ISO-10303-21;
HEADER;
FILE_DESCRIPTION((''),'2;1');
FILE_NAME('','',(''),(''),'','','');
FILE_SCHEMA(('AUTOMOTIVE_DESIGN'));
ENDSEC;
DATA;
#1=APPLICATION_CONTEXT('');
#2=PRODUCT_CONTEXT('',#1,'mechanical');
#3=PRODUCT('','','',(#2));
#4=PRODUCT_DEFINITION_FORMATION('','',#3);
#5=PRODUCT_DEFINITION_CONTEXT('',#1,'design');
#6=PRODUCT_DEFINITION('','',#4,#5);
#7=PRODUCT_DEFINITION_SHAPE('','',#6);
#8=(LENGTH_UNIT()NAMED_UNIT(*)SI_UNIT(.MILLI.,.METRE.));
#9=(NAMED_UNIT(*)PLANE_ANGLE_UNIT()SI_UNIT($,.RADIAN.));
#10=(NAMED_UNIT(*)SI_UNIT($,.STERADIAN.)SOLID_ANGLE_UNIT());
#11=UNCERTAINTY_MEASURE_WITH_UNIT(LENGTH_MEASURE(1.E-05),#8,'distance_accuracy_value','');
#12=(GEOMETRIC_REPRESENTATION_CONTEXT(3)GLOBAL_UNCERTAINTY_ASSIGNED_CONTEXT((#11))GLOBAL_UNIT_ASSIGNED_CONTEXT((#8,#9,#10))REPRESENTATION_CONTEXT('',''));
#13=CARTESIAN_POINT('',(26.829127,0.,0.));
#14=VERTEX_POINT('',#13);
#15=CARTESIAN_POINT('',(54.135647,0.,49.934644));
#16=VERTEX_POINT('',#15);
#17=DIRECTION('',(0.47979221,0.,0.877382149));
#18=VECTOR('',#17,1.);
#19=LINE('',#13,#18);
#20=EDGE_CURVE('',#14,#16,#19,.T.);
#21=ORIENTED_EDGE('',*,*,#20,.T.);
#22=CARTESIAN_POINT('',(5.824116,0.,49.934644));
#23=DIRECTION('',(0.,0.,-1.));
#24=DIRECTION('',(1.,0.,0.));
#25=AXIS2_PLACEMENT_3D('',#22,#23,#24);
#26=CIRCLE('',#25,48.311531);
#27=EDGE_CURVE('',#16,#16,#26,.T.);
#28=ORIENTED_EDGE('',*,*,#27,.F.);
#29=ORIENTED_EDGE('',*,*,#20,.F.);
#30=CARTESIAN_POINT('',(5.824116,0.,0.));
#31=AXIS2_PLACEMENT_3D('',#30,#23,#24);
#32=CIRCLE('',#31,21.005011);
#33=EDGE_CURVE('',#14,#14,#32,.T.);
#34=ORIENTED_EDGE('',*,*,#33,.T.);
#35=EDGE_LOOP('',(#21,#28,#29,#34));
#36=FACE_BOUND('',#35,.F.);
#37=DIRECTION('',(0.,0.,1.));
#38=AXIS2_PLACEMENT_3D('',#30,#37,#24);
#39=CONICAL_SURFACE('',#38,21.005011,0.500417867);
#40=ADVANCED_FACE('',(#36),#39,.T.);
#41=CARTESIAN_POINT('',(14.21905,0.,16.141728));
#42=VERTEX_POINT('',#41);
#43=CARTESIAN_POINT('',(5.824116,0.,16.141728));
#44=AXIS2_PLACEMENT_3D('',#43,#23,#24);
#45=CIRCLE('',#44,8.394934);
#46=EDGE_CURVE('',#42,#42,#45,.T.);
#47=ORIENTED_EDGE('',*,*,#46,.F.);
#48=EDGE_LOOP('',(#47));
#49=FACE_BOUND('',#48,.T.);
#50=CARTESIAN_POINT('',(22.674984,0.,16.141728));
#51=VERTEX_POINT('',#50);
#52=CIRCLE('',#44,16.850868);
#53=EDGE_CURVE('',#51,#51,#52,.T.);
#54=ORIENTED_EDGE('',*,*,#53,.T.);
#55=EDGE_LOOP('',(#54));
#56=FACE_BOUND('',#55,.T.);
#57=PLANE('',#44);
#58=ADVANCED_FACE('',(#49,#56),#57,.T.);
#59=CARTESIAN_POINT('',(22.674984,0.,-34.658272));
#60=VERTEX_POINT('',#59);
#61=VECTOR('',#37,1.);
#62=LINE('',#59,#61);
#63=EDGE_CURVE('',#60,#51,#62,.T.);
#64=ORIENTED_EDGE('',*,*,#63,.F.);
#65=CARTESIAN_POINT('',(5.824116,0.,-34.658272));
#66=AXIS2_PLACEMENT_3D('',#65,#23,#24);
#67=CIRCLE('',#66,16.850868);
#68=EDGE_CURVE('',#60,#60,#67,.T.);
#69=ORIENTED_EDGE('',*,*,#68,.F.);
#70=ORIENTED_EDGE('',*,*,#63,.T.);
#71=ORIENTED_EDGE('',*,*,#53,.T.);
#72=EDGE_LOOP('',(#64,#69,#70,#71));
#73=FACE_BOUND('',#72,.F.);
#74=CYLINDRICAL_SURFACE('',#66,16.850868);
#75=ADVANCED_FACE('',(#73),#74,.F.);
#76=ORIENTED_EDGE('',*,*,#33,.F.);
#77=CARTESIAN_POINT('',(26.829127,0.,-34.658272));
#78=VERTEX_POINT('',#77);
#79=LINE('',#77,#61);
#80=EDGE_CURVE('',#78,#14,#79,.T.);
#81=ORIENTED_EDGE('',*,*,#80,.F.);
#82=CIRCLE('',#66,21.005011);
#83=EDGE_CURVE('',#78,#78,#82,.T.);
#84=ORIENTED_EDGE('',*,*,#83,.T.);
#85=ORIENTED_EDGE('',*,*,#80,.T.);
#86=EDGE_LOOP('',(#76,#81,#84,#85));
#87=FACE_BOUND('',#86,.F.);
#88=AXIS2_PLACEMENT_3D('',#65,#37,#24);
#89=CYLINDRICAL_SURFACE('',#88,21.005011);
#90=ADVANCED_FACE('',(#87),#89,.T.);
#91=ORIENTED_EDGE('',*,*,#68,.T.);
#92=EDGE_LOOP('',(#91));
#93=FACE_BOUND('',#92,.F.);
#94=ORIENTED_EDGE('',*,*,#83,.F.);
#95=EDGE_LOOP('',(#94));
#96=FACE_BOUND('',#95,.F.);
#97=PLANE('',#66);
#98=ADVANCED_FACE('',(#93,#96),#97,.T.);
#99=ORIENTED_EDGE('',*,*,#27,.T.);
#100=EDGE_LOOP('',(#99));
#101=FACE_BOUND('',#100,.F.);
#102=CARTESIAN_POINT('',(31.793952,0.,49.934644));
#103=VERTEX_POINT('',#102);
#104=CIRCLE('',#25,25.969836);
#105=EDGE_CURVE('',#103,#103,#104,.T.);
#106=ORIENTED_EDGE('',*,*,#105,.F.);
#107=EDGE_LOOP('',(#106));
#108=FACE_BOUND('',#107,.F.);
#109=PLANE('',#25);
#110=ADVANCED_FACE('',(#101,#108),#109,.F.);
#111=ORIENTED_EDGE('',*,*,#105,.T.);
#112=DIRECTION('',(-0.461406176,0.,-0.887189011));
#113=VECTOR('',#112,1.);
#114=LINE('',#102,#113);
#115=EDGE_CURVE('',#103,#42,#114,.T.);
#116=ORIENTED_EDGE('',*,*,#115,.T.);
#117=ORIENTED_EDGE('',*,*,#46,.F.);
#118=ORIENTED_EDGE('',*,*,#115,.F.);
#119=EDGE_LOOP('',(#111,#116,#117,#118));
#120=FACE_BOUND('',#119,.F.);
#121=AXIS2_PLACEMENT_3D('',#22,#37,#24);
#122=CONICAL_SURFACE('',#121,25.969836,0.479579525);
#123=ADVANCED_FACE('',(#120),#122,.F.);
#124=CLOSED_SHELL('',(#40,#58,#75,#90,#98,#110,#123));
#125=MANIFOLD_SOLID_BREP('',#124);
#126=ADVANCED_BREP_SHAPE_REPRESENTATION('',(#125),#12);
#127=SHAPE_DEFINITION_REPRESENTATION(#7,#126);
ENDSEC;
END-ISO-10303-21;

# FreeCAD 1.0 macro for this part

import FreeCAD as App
import Part
import Sketcher
Q = App.Units.Quantity

doc = App.newDocument("Part")
body = doc.addObject("PartDesign::Body", "Body")

# Sketch on XZ plane
sketch1 = doc.addObject("Sketcher::SketchObject", "Sketch")
body.addObject(sketch1)
sketch1.AttachmentSupport = (doc.XZ_Plane, [""])
sketch1.MapMode = "FlatFace"
sketch1.addGeometry(Part.LineSegment(App.Vector(32, 50, 0), App.Vector(6, 0, 0)), False)
sketch1.addGeometry(Part.LineSegment(App.Vector(6, 0, 0), App.Vector(6, -35, 0)), False)
sketch1.addGeometry(Part.LineSegment(App.Vector(6, -35, 0), App.Vector(27, -35, 0)), False)
sketch1.addGeometry(Part.LineSegment(App.Vector(27, -35, 0), App.Vector(27, 0, 0)), False)
sketch1.addGeometry(Part.LineSegment(App.Vector(27, 0, 0), App.Vector(54, 50, 0)), False)
sketch1.addGeometry(Part.LineSegment(App.Vector(54, 50, 0), App.Vector(32, 50, 0)), False)
sketch1.addGeometry(Part.LineSegment(App.Vector(6, 50, 0), App.Vector(6, -35, 0)), True)  # axis
sketch1.addConstraint(Sketcher.Constraint("Coincident", 0, 2, 1, 1))
sketch1.addConstraint(Sketcher.Constraint("Coincident", 1, 2, 2, 1))
sketch1.addConstraint(Sketcher.Constraint("Coincident", 2, 2, 3, 1))
sketch1.addConstraint(Sketcher.Constraint("Coincident", 3, 2, 4, 1))
sketch1.addConstraint(Sketcher.Constraint("Coincident", 4, 2, 5, 1))
sketch1.addConstraint(Sketcher.Constraint("Coincident", 5, 2, 0, 1))
sketch1.addConstraint(Sketcher.Constraint("Vertical", 1))
sketch1.addConstraint(Sketcher.Constraint("Horizontal", 2))
sketch1.addConstraint(Sketcher.Constraint("Vertical", 3))
sketch1.addConstraint(Sketcher.Constraint("Horizontal", 5))
sketch1.addConstraint(Sketcher.Constraint("Vertical", 6))
sketch1.addConstraint(Sketcher.Constraint("Coincident", 6, 2, 1, 2))
sketch1.addConstraint(Sketcher.Constraint("PointOnObject", 0, 2, -1))
sketch1.addConstraint(Sketcher.Constraint("PointOnObject", 3, 2, -1))
sketch1.addConstraint(Sketcher.Constraint("Horizontal", 5, 2, 6, 1))
sketch1.addConstraint(Sketcher.Constraint("DistanceX", 2, 1, 2, 2, 21.005011))
sketch1.addConstraint(Sketcher.Constraint("DistanceY", 1, 2, 1, 1, 34.658272))
sketch1.addConstraint(Sketcher.Constraint("Distance", 0, 56.28411))
sketch1.addConstraint(Sketcher.Constraint("Distance", 4, 56.913221))
sketch1.addConstraint(Sketcher.Constraint("DistanceX", 5, 2, 5, 1, 22.341695))
sketch1.addConstraint(Sketcher.Constraint("DistanceX", -1, 1, 0, 2, 5.824116))
revolution = doc.addObject("PartDesign::Revolution", "Revolution")
body.addObject(revolution)
revolution.Profile = sketch1
revolution.ReferenceAxis = (sketch1, ["Axis0"])
revolution.Angle = 360

# Sketch on XY plane
sketch2 = doc.addObject("Sketcher::SketchObject", "Sketch001")
body.addObject(sketch2)
sketch2.AttachmentSupport = (doc.XY_Plane, [""])
sketch2.MapMode = "FlatFace"
sketch2.AttachmentOffset = App.Placement(App.Vector(0, 0, -34.658272), App.Rotation())
sketch2.addGeometry(Part.Circle(App.Vector(6, 0, 0), App.Vector(0, 0, 1), 17), False)
sketch2.addConstraint(Sketcher.Constraint("PointOnObject", 0, 3, -1))
sketch2.addConstraint(Sketcher.Constraint("Diameter", 0, 33.701736))
sketch2.addConstraint(Sketcher.Constraint("DistanceX", -1, 1, 0, 3, 5.824116))
pocket1 = doc.addObject("PartDesign::Pocket", "Pocket")
body.addObject(pocket1)
pocket1.Profile = sketch2
pocket1.Length = Q("2 in")
pocket1.Reversed = True

doc.recompute()
